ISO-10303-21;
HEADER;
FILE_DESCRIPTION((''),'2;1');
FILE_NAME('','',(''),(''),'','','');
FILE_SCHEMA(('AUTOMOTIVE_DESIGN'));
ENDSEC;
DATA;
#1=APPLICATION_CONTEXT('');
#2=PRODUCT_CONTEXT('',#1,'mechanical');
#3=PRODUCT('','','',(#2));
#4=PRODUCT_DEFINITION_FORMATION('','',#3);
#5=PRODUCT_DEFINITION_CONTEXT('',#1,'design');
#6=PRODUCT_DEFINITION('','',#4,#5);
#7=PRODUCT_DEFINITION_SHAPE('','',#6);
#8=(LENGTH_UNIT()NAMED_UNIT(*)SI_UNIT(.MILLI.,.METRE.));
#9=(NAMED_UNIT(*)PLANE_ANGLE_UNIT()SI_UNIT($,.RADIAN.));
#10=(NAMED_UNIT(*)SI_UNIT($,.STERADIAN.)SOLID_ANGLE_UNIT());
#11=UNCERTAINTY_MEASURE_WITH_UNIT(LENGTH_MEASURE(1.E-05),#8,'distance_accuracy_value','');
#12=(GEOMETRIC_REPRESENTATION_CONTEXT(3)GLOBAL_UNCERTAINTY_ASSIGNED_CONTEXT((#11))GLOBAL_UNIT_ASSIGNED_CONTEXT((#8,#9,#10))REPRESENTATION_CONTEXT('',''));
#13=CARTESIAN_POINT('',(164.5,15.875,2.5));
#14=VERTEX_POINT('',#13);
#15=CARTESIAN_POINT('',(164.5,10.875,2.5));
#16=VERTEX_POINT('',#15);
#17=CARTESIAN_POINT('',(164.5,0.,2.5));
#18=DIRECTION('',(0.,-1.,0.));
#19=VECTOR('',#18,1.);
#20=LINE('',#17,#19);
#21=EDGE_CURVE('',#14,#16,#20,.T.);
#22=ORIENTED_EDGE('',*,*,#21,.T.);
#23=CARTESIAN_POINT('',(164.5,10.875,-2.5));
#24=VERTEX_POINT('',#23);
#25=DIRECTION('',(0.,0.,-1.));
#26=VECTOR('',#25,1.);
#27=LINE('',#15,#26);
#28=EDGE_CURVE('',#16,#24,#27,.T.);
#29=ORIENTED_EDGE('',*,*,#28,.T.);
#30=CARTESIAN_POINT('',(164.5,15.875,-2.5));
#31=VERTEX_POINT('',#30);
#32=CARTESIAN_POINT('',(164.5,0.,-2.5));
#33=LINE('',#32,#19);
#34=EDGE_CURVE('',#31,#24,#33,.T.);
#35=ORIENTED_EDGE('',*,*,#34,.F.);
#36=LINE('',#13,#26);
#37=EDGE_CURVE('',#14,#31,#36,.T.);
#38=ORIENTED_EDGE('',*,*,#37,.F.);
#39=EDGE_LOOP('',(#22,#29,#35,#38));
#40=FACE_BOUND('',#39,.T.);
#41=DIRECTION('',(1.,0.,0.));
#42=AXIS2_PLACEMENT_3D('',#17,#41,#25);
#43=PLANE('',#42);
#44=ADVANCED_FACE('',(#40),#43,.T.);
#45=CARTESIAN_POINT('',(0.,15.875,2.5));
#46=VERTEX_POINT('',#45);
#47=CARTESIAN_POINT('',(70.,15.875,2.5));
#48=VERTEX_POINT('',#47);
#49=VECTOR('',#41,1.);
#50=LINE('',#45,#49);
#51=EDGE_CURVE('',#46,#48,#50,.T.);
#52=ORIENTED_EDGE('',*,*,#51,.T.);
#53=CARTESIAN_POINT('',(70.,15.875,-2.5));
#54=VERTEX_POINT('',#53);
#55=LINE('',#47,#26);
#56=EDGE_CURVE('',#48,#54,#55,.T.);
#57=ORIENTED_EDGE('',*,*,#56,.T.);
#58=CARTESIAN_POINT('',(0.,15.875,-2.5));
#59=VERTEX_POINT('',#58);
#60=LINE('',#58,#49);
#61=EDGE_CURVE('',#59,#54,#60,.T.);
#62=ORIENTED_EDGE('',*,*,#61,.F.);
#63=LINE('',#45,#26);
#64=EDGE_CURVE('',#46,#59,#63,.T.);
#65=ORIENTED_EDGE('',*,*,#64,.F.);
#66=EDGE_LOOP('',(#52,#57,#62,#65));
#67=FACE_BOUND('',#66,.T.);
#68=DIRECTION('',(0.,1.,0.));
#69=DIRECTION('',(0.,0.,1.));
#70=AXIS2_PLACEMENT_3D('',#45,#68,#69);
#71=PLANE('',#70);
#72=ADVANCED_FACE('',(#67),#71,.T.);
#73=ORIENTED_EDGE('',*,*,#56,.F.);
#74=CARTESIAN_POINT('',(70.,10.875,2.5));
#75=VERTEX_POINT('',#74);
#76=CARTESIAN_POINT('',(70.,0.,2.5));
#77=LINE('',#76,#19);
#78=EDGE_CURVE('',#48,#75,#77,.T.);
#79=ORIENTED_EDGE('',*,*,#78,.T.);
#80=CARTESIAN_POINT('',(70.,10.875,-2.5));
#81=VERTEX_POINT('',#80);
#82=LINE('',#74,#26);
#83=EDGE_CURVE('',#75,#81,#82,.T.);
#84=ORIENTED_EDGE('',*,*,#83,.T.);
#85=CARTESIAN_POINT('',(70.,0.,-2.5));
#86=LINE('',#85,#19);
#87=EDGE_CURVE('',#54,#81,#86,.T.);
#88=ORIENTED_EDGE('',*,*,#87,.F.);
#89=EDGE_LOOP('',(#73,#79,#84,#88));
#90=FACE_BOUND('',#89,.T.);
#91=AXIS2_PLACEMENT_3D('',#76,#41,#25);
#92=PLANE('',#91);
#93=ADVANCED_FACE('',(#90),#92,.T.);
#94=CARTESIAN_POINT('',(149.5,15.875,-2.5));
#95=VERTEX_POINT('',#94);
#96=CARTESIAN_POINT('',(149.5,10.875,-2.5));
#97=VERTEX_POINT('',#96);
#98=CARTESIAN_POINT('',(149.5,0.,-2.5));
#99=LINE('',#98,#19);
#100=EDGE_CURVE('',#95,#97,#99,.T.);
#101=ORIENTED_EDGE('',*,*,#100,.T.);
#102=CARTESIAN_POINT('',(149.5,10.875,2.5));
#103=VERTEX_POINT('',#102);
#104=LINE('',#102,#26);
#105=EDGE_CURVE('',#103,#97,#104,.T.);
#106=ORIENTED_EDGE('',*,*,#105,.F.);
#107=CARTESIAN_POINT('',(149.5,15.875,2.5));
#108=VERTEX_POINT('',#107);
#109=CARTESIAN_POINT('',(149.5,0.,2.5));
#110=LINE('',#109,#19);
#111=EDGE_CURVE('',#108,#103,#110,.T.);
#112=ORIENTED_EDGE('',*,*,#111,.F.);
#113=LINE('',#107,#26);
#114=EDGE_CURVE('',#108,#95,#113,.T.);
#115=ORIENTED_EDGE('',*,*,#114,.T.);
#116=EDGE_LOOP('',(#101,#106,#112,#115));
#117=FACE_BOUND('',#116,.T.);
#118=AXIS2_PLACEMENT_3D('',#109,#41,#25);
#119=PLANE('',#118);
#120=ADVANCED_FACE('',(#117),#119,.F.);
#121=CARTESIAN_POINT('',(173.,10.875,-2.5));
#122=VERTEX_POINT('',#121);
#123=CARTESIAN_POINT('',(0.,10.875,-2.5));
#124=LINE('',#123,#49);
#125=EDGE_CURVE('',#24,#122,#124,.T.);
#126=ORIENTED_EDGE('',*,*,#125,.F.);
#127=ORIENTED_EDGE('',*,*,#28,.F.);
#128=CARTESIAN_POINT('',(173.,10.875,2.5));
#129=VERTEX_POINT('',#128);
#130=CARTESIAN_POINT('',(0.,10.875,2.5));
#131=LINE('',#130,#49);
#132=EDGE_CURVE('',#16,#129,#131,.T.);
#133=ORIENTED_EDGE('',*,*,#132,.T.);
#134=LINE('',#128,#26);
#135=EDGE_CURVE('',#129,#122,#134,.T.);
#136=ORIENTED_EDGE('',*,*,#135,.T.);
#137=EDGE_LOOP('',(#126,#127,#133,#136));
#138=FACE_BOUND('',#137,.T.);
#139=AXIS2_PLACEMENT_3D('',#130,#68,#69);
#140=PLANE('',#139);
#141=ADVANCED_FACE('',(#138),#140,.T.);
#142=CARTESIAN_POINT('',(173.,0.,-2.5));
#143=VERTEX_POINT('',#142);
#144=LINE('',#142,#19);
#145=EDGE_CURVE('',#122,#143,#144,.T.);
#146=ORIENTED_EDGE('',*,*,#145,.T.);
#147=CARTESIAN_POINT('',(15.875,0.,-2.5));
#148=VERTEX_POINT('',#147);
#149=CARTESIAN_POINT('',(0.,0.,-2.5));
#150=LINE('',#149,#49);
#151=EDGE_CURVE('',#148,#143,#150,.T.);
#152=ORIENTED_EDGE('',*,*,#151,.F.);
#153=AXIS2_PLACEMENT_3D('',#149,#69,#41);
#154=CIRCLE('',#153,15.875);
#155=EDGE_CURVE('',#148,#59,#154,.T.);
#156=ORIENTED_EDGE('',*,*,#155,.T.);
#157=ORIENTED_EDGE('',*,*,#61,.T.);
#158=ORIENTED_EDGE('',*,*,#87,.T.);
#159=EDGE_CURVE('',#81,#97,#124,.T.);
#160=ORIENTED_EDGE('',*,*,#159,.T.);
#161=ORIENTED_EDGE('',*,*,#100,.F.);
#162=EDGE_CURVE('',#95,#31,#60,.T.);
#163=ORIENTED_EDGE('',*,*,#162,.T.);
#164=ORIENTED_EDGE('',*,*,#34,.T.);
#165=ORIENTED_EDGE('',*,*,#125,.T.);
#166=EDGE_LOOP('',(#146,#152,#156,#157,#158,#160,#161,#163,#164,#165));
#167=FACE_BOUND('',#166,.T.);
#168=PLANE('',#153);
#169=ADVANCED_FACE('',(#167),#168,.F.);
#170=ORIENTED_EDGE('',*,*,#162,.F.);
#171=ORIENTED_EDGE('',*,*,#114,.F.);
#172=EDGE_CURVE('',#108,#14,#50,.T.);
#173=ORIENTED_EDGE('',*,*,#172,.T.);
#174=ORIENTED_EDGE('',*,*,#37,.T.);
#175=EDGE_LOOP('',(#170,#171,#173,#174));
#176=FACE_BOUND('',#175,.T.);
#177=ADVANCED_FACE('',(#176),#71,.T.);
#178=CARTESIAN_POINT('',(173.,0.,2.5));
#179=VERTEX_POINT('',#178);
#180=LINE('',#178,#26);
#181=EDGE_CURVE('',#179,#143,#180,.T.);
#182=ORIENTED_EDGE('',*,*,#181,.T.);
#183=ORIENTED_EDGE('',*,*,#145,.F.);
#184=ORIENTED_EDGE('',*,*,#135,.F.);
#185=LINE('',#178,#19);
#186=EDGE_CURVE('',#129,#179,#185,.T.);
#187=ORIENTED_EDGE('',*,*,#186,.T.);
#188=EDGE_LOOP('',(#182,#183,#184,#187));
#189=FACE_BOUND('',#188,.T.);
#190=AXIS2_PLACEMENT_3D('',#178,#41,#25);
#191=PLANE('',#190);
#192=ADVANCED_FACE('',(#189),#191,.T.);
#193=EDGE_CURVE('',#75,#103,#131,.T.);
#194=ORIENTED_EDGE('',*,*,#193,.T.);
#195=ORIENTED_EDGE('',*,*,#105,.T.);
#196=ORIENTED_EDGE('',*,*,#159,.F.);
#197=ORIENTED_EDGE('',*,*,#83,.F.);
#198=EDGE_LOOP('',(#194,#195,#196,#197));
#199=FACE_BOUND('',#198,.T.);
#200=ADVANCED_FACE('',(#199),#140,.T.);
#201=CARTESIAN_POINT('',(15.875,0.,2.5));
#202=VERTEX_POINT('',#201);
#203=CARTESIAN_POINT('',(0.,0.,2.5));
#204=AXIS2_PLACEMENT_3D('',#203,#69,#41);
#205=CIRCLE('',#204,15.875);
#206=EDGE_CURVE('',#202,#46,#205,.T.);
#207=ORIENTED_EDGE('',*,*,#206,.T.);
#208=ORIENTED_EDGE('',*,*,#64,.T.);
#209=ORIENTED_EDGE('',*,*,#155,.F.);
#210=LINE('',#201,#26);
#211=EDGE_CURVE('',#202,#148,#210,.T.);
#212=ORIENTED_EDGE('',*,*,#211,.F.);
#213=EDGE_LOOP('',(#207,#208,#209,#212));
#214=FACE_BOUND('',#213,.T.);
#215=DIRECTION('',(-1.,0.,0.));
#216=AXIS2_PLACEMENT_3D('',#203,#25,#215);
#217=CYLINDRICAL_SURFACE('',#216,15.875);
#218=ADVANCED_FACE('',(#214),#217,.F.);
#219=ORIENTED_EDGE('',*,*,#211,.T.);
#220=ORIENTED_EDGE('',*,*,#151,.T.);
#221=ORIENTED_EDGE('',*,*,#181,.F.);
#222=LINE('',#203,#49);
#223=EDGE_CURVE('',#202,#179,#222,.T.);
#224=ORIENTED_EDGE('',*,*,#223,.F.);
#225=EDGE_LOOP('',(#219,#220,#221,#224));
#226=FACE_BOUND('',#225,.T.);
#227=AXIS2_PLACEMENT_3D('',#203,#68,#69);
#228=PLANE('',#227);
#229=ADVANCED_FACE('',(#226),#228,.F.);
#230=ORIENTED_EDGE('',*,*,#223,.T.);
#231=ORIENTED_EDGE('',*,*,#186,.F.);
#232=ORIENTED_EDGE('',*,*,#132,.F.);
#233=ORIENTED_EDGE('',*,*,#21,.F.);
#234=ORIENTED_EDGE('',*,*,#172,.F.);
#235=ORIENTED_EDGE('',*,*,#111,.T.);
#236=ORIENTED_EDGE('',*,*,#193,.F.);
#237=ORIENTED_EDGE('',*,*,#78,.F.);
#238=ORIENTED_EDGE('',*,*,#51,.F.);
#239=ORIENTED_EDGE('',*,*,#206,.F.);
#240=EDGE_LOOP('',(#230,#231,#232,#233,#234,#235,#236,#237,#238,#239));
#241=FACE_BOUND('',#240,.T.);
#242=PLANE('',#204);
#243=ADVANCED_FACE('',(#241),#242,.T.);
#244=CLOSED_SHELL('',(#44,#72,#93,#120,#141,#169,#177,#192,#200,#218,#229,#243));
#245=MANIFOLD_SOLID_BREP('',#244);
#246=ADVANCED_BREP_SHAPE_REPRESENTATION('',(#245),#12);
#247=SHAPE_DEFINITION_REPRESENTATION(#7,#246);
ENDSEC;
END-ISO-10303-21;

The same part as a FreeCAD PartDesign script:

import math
import FreeCAD as App
import Part
import Sketcher
from FreeCAD import Vector
Q = App.Units.Quantity

doc = App.newDocument("Part")
body = doc.addObject("PartDesign::Body", "Body")

sketch1 = body.newObject("Sketcher::SketchObject", "Sketch")
sketch1.AttachmentSupport = (doc.getObject("XY_Plane"), [""])
sketch1.MapMode = "FlatFace"
sketch1.addGeometry([
    Part.ArcOfCircle(Part.Circle(Vector(0, 0, 0), Vector(0, 0, 1), 16), math.radians(0), math.radians(43)),
    Part.LineSegment(Vector(16, 0, 0), Vector(173, 0, 0)),
    Part.LineSegment(Vector(173, 0, 0), Vector(173, 11, 0)),
    Part.LineSegment(Vector(173, 11, 0), Vector(164, 11, 0)),
    Part.LineSegment(Vector(164, 11, 0), Vector(164, 16, 0)),
    Part.LineSegment(Vector(164, 16, 0), Vector(150, 16, 0)),
    Part.LineSegment(Vector(150, 16, 0), Vector(150, 11, 0)),
    Part.LineSegment(Vector(150, 11, 0), Vector(70, 11, 0)),
    Part.LineSegment(Vector(70, 11, 0), Vector(70, 16, 0)),
    Part.LineSegment(Vector(70, 16, 0), Vector(0, 16, 0)),
    Part.ArcOfCircle(Part.Circle(Vector(0, 0, 0), Vector(0, 0, 1), 16), math.radians(43), math.radians(90)),
], False)
sketch1.addConstraint([
    Sketcher.Constraint("Coincident", 0, 1, 1, 1),
    Sketcher.Constraint("Coincident", 1, 2, 2, 1),
    Sketcher.Constraint("Coincident", 2, 2, 3, 1),
    Sketcher.Constraint("Coincident", 3, 2, 4, 1),
    Sketcher.Constraint("Coincident", 4, 2, 5, 1),
    Sketcher.Constraint("Coincident", 5, 2, 6, 1),
    Sketcher.Constraint("Coincident", 6, 2, 7, 1),
    Sketcher.Constraint("Coincident", 7, 2, 8, 1),
    Sketcher.Constraint("Coincident", 8, 2, 9, 1),
    Sketcher.Constraint("Tangent", 9, 2, 10, 2),
    Sketcher.Constraint("Tangent", 10, 1, 0, 2),
    Sketcher.Constraint("Horizontal", 1),
    Sketcher.Constraint("Vertical", 2),
    Sketcher.Constraint("Horizontal", 3),
    Sketcher.Constraint("Vertical", 4),
    Sketcher.Constraint("Horizontal", 5),
    Sketcher.Constraint("Vertical", 6),
    Sketcher.Constraint("Horizontal", 7),
    Sketcher.Constraint("Vertical", 8),
    Sketcher.Constraint("Horizontal", 9),
    Sketcher.Constraint("Coincident", 0, 3, -1, 1),
    Sketcher.Constraint("Equal", 0, 10),
    Sketcher.Constraint("PointOnObject", 0, 1, -1),
    Sketcher.Constraint("Horizontal", 3, 2, 6, 2),
    Sketcher.Constraint("Horizontal", 5, 2, 8, 2),
    Sketcher.Constraint("Horizontal", 7, 2, 10, 1),
    Sketcher.Constraint("DistanceX", 5, 2, 5, 1, Q("15 mm")),
    Sketcher.Constraint("DistanceX", 9, 2, 9, 1, Q("70 mm")),
    Sketcher.Constraint("DistanceY", 4, 1, 4, 2, Q("5 mm")),
    Sketcher.Constraint("DistanceX", 3, 2, 3, 1, Q("8.5 mm")),
    Sketcher.Constraint("DistanceX", 7, 2, 7, 1, Q("79.5 mm")),
    Sketcher.Constraint("Radius", 0, Q("15.875 mm")),
])
pad1 = body.newObject("PartDesign::Pad", "Pad")
pad1.Profile = sketch1
pad1.Length = 5
pad1.Midplane = True

doc.recompute()
